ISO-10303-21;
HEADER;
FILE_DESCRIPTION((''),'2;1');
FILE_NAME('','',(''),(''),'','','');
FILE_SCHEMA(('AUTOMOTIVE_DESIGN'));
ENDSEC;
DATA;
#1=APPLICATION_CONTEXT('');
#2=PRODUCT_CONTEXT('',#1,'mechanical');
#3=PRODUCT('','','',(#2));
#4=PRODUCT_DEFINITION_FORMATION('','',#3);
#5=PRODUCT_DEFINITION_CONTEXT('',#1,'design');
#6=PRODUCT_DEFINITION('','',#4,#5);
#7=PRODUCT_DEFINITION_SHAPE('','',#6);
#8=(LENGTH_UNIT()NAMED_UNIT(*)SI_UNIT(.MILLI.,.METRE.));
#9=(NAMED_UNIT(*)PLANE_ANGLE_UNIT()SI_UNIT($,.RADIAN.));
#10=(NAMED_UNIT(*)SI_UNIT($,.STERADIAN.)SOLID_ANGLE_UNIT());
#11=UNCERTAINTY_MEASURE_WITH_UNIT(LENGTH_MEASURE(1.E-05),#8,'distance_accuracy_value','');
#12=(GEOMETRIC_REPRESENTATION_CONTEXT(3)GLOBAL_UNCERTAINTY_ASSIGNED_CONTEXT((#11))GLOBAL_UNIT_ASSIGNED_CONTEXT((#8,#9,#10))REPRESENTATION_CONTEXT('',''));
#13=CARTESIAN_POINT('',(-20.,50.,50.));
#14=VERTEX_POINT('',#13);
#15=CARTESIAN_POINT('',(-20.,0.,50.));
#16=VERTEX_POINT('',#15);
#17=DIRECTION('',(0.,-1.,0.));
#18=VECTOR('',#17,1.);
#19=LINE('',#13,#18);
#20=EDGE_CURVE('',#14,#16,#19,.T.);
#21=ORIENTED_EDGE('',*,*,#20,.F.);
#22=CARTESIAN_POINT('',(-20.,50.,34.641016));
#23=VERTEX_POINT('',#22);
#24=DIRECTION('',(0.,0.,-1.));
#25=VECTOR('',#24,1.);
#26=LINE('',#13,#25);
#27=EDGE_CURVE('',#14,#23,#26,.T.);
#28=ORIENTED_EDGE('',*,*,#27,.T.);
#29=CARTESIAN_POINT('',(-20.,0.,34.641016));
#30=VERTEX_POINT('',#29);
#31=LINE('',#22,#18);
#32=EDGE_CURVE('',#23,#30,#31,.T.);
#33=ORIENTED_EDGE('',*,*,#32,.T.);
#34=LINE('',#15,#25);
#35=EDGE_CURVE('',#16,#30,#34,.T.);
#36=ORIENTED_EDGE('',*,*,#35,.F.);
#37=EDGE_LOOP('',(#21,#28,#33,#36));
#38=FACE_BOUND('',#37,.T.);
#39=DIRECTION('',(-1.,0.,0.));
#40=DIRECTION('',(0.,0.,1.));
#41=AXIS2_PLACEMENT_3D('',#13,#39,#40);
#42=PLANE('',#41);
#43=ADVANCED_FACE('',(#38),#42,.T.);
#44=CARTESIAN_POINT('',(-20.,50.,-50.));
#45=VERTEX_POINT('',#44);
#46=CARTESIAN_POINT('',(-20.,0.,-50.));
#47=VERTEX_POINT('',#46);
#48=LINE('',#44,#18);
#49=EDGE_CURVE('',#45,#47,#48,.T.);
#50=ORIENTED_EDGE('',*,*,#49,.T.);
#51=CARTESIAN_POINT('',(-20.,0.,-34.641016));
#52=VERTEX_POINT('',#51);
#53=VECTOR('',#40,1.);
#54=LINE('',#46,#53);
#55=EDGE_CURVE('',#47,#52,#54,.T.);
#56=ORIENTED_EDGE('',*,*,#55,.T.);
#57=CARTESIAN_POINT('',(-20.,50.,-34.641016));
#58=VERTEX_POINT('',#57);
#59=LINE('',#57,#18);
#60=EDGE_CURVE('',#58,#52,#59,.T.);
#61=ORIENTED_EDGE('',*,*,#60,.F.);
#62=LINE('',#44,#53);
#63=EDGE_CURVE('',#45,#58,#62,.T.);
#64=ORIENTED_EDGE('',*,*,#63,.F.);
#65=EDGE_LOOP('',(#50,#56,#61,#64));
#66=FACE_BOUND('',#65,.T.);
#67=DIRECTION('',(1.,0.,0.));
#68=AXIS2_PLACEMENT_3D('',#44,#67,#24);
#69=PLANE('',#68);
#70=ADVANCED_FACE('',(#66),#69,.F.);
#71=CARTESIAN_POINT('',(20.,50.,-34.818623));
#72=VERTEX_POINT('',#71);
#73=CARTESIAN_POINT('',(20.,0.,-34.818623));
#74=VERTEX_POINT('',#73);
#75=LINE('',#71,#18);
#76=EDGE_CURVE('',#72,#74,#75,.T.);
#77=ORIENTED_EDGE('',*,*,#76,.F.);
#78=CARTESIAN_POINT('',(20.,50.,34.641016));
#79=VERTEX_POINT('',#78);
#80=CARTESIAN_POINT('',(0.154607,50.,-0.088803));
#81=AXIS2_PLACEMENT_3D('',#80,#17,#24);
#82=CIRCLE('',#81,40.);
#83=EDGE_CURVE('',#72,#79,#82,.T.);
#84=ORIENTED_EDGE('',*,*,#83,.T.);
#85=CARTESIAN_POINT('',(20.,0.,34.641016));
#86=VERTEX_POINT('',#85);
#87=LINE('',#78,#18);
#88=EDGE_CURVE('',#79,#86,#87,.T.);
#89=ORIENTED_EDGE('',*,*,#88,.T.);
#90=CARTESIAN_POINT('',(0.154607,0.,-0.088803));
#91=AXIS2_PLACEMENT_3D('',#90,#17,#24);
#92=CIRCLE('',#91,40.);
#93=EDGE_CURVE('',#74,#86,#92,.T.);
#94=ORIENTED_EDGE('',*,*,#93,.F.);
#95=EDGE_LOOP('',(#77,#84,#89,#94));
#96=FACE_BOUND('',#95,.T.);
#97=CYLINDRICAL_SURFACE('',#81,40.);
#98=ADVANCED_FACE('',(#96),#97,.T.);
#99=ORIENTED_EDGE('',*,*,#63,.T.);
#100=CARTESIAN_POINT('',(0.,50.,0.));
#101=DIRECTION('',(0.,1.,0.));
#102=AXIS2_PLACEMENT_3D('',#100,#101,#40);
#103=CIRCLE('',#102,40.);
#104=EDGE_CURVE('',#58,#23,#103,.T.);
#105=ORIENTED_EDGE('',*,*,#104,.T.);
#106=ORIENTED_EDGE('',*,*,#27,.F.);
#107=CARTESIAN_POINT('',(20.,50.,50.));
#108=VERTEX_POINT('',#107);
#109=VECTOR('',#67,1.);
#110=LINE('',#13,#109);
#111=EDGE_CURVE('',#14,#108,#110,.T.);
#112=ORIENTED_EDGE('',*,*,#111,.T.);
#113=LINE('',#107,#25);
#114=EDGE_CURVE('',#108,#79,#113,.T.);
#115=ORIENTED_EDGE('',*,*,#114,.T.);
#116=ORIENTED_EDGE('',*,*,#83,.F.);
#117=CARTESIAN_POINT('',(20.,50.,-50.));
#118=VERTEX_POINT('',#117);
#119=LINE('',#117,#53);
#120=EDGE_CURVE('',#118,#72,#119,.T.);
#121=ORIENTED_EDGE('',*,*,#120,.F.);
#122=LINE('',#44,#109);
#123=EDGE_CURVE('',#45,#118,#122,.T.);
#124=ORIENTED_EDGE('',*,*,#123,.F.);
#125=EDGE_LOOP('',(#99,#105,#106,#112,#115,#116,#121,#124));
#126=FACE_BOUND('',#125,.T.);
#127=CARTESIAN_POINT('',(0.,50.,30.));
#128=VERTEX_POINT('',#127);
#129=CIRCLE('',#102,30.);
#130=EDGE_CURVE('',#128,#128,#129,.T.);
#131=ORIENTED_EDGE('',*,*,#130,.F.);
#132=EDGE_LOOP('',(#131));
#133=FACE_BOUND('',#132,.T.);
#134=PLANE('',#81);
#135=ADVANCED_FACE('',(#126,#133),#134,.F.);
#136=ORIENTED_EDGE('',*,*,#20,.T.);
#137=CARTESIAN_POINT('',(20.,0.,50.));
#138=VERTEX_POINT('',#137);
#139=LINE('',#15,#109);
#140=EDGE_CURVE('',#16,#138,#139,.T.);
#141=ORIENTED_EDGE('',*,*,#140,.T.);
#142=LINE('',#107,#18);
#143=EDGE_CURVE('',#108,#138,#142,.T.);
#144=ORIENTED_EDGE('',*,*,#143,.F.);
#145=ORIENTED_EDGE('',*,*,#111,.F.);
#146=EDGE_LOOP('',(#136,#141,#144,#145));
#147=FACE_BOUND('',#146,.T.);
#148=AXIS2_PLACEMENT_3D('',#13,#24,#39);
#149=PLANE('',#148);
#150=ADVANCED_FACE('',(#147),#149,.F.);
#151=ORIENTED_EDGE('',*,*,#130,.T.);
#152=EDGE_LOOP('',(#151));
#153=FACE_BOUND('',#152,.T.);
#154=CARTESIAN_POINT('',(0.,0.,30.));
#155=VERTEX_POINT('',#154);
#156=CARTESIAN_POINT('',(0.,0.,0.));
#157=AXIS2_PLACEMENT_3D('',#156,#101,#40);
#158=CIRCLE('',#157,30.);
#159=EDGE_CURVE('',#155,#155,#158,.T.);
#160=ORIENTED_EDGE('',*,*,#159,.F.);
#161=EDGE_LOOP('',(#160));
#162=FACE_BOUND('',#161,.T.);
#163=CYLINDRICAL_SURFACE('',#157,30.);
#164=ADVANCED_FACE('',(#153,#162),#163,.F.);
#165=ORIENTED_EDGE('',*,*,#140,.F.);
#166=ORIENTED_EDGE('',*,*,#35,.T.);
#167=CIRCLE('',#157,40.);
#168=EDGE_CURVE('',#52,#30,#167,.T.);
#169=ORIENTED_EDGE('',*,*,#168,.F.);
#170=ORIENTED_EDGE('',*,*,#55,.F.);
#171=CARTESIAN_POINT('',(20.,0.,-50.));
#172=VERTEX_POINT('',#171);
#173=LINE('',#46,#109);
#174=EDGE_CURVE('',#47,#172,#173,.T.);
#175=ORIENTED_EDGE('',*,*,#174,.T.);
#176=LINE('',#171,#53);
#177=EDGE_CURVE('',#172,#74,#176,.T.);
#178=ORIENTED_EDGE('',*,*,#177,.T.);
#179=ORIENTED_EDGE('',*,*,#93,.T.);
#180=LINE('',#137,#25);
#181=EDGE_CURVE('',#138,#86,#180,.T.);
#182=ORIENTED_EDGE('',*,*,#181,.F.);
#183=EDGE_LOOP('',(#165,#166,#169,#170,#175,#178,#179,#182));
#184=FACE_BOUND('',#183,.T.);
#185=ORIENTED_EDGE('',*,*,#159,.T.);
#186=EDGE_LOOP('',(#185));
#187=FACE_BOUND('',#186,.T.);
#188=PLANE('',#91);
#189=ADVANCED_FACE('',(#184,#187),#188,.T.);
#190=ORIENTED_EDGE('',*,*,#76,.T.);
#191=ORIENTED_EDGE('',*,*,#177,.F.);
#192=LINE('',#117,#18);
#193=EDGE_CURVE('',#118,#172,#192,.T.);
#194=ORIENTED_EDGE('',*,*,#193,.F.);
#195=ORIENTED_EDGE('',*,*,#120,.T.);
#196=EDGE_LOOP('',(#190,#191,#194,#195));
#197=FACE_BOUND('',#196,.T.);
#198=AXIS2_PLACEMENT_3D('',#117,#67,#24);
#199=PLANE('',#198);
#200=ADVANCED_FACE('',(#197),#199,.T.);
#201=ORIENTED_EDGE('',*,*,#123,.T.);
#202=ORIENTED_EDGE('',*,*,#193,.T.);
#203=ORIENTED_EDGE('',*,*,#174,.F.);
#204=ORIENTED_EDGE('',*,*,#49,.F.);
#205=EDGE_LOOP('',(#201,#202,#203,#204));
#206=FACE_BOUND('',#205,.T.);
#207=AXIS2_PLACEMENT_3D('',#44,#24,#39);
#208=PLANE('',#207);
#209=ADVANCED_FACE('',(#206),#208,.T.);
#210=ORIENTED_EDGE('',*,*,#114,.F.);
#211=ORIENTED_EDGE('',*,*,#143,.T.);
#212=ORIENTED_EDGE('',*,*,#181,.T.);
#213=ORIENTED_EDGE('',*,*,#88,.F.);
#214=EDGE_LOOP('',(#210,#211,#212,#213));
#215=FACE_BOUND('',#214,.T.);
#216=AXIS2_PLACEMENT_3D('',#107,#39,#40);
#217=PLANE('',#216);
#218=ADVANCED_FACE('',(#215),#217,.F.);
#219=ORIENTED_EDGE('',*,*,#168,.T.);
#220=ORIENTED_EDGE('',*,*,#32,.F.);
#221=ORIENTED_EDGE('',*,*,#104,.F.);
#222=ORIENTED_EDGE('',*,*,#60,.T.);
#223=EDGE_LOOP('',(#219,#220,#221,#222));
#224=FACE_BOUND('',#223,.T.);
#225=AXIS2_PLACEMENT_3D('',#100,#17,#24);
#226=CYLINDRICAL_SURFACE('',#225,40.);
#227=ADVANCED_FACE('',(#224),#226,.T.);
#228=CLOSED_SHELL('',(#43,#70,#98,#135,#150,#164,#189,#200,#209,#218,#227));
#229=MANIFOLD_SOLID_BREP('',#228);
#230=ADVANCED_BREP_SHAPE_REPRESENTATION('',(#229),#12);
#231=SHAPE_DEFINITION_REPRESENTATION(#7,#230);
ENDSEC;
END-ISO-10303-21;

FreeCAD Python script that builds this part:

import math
import FreeCAD as App
import Part
import Sketcher

V = App.Vector

doc = App.newDocument("Part")
body = doc.addObject("PartDesign::Body", "Body")

# Sketch on XZ plane
sketch1 = body.newObject("Sketcher::SketchObject", "Sketch")
sketch1.AttachmentSupport = (doc.getObject("XZ_Plane"), [""])
sketch1.MapMode = "FlatFace"
sketch1.addGeometry([
    Part.LineSegment(V(20, -50, 0), V(-20, -50, 0)),  # 0
    Part.LineSegment(V(-20, -50, 0), V(-20, -35, 0)),  # 1
    Part.ArcOfCircle(Part.Circle(V(0, 0, 0), V(0, 0, 1), 40), math.radians(120), math.radians(240)),  # 2
    Part.LineSegment(V(-20, 35, 0), V(-20, 50, 0)),  # 3
    Part.LineSegment(V(-20, 50, 0), V(20, 50, 0)),  # 4
    Part.LineSegment(V(20, 50, 0), V(20, 35, 0)),  # 5
    Part.ArcOfCircle(Part.Circle(V(0, 0, 0), V(0, 0, 1), 40), math.radians(-60), math.radians(60)),  # 6
    Part.LineSegment(V(20, -35, 0), V(20, -50, 0)),  # 7
], False)
sketch1.addConstraint([
    Sketcher.Constraint("Coincident", 0, 2, 1, 1),
    Sketcher.Constraint("Coincident", 1, 2, 2, 2),
    Sketcher.Constraint("Coincident", 2, 1, 3, 1),
    Sketcher.Constraint("Coincident", 3, 2, 4, 1),
    Sketcher.Constraint("Coincident", 4, 2, 5, 1),
    Sketcher.Constraint("Coincident", 5, 2, 6, 2),
    Sketcher.Constraint("Coincident", 6, 1, 7, 1),
    Sketcher.Constraint("Coincident", 7, 2, 0, 1),
    Sketcher.Constraint("Horizontal", 0),
    Sketcher.Constraint("Vertical", 1),
    Sketcher.Constraint("Vertical", 3),
    Sketcher.Constraint("Horizontal", 4),
    Sketcher.Constraint("Vertical", 5),
    Sketcher.Constraint("Vertical", 7),
    Sketcher.Constraint("Coincident", 2, 3, -1, 1),
    Sketcher.Constraint("Equal", 2, 6),
    Sketcher.Constraint("Symmetric", 0, 2, 4, 2, -1, 1),
    Sketcher.Constraint("Symmetric", 2, 1, 5, 2, -2),
    Sketcher.Constraint("Vertical", 5, 2, 6, 1),
    Sketcher.Constraint("Radius", 2, 40.0),
    Sketcher.Constraint("DistanceX", 0, 2, 0, 1, 40.0),
    Sketcher.Constraint("DistanceY", 0, 2, -1, 1, 50.0),
    Sketcher.Constraint("DistanceY", 7, 2, 7, 1, 15.181377),
])
pad1 = body.newObject("PartDesign::Pad", "Pad")
pad1.Profile = sketch1
pad1.Length = 50
pad1.Reversed = True

# Sketch on XZ plane
sketch2 = body.newObject("Sketcher::SketchObject", "Sketch001")
sketch2.AttachmentSupport = (doc.getObject("XZ_Plane"), [""])
sketch2.MapMode = "FlatFace"
sketch2.AttachmentOffset = App.Placement(V(0, 0, -50), App.Rotation())
sketch2.addGeometry(Part.Circle(V(0, 0, 0), V(0, 0, 1), 30), False)
sketch2.addConstraint([
    Sketcher.Constraint("Coincident", 0, 3, -1, 1),
    Sketcher.Constraint("Diameter", 0, 60.0),
])
pocket1 = body.newObject("PartDesign::Pocket", "Pocket")
pocket1.Profile = sketch2
pocket1.Length = 50
pocket1.Reversed = True

doc.recompute()
